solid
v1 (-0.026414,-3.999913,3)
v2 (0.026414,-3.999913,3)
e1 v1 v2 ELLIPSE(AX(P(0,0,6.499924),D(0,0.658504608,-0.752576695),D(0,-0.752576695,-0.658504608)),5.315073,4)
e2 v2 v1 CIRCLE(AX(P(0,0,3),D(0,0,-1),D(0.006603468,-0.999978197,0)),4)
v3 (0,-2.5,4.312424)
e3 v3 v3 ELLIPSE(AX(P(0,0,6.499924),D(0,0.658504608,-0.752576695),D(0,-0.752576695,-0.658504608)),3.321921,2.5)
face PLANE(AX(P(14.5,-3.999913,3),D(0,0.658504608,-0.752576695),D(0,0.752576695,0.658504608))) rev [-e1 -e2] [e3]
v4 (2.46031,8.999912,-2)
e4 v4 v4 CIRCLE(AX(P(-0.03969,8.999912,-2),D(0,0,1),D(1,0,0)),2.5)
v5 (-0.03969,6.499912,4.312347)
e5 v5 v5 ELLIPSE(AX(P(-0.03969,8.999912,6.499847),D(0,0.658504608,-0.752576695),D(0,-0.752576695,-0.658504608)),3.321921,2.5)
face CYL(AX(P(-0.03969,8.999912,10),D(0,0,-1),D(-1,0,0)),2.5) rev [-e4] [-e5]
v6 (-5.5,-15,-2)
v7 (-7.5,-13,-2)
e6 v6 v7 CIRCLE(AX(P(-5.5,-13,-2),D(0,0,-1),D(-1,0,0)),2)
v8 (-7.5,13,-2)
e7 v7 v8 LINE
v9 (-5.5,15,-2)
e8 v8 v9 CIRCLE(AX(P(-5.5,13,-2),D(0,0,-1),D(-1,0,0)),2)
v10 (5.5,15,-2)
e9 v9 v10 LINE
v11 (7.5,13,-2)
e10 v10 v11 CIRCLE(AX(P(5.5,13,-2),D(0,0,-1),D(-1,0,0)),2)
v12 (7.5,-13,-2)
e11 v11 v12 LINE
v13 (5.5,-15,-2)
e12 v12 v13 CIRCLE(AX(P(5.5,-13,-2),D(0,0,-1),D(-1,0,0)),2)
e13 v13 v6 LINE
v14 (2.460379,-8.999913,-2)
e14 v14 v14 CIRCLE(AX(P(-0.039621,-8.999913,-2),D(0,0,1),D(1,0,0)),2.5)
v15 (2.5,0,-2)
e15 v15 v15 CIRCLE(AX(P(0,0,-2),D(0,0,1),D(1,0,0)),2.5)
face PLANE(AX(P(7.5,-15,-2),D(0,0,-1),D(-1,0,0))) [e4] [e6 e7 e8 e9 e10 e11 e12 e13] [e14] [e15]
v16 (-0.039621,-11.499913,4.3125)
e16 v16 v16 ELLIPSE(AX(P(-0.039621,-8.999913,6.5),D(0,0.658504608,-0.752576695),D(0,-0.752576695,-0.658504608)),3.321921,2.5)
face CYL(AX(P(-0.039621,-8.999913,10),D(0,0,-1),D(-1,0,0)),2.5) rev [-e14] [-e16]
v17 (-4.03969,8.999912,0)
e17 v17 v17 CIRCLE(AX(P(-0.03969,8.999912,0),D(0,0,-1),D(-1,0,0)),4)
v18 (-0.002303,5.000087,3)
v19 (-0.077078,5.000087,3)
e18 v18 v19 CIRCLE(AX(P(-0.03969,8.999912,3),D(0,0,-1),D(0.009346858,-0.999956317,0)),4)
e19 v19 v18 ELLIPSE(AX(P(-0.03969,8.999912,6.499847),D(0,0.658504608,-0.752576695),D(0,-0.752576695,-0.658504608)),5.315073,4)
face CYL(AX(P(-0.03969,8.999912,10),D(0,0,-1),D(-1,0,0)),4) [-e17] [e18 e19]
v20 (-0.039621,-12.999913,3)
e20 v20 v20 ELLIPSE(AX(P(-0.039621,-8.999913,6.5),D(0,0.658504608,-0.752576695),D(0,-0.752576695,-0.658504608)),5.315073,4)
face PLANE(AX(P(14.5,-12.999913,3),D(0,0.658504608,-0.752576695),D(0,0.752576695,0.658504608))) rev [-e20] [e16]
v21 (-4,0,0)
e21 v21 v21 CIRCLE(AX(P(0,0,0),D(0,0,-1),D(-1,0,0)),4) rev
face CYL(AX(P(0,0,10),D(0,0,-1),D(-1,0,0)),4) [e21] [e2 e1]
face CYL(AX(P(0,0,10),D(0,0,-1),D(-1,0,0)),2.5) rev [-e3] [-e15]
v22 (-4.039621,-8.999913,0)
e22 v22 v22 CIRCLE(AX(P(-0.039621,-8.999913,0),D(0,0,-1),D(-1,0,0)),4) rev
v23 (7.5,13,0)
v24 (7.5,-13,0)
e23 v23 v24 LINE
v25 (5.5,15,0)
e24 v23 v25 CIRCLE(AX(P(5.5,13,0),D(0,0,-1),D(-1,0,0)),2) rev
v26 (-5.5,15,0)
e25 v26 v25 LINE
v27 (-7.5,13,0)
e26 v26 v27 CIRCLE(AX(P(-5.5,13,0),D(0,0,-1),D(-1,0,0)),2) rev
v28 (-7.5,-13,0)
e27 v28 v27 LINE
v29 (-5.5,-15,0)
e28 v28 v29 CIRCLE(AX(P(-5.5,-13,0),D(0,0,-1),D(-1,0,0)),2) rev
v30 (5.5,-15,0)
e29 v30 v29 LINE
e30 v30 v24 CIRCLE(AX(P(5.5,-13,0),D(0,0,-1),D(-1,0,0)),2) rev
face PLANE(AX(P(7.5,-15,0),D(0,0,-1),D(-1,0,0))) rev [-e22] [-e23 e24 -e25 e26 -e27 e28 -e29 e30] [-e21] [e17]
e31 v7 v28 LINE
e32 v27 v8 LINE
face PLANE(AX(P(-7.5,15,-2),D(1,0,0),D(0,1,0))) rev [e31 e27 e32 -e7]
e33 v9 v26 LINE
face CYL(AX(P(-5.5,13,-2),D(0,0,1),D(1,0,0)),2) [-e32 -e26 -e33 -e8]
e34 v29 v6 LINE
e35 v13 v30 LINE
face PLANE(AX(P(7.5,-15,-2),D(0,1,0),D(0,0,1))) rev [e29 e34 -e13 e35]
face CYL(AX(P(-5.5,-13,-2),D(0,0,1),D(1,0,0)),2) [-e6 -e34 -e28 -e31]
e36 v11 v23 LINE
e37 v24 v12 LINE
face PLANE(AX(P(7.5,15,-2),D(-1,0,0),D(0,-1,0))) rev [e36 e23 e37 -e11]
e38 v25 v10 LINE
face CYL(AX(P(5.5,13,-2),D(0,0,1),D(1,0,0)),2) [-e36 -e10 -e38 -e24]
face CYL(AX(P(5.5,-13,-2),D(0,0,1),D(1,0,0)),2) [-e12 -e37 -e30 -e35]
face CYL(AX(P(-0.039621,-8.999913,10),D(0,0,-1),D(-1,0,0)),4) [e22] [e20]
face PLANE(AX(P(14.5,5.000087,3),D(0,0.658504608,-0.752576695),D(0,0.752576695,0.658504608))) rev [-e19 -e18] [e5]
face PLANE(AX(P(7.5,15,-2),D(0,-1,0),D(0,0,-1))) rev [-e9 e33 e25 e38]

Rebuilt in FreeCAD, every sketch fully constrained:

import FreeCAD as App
import Part
import Sketcher

V = App.Vector
Q = App.Units.Quantity


def edges_at(feature, points):
    """Names of the edges that pass closest to the given points."""
    edges = feature.Shape.Edges
    near = lambda p: min(range(len(edges)), key=lambda i: edges[i].distToShape(Part.Vertex(*p))[0])
    return sorted({f"Edge{near(p) + 1}" for p in points})

doc = App.newDocument("Part")
body = doc.addObject("PartDesign::Body", "Body")

sketch1 = doc.addObject("Sketcher::SketchObject", "Sketch")
body.addObject(sketch1)
sketch1.AttachmentSupport = (doc.XY_Plane, [""])
sketch1.MapMode = "FlatFace"
sketch1.addGeometry([
    Part.Circle(V(-0.03969, 8.999912, 0), V(0, 0, 1), 4),
    Part.Circle(V(-0.03969, 8.999912, 0), V(0, 0, 1), 2.5),
], False)
sketch1.addConstraint([
    Sketcher.Constraint("Coincident", 1, 3, 0, 3),
    Sketcher.Constraint("Diameter", 0, Q("8 mm")),
    Sketcher.Constraint("Diameter", 1, Q("5 mm")),
    Sketcher.Constraint("DistanceX", 0, 3, -1, 1, Q("0.03969 mm")),
    Sketcher.Constraint("DistanceY", -1, 1, 0, 3, Q("8.999912 mm")),
])
pad1 = doc.addObject("PartDesign::Pad", "Pad")
body.addObject(pad1)
pad1.Profile = sketch1
pad1.Length = 10
body2 = doc.addObject("PartDesign::Body", "Body001")

sketch2 = doc.addObject("Sketcher::SketchObject", "Sketch001")
body2.addObject(sketch2)
sketch2.AttachmentSupport = (doc.getObject("XY_Plane001"), [""])
sketch2.MapMode = "FlatFace"
sketch2.addGeometry([
    Part.Circle(V(0, 0, 0), V(0, 0, 1), 4),
    Part.Circle(V(0, 0, 0), V(0, 0, 1), 2.5),
], False)
sketch2.addConstraint([
    Sketcher.Constraint("Coincident", 0, 3, -1, 1),
    Sketcher.Constraint("Coincident", 1, 3, -1, 1),
    Sketcher.Constraint("Diameter", 0, Q("8 mm")),
    Sketcher.Constraint("Diameter", 1, Q("5 mm")),
])
pad2 = doc.addObject("PartDesign::Pad", "Pad001")
body2.addObject(pad2)
pad2.Profile = sketch2
pad2.Length = 10
body3 = doc.addObject("PartDesign::Body", "Body002")

sketch3 = doc.addObject("Sketcher::SketchObject", "Sketch002")
body3.addObject(sketch3)
sketch3.AttachmentSupport = (doc.getObject("XY_Plane002"), [""])
sketch3.MapMode = "FlatFace"
sketch3.addGeometry([
    Part.Circle(V(-0.039621, -8.999913, 0), V(0, 0, 1), 4),
    Part.Circle(V(-0.039621, -8.999913, 0), V(0, 0, 1), 2.5),
], False)
sketch3.addConstraint([
    Sketcher.Constraint("Coincident", 1, 3, 0, 3),
    Sketcher.Constraint("Diameter", 0, Q("8 mm")),
    Sketcher.Constraint("Diameter", 1, Q("5 mm")),
    Sketcher.Constraint("DistanceX", 0, 3, -1, 1, Q("0.039621 mm")),
    Sketcher.Constraint("DistanceY", 0, 3, -1, 1, Q("8.999913 mm")),
])
pad3 = doc.addObject("PartDesign::Pad", "Pad002")
body3.addObject(pad3)
pad3.Profile = sketch3
pad3.Length = 10
body.AllowCompound = True
doc.recompute()

boolean = doc.addObject("PartDesign::Boolean", "Boolean")
body.addObject(boolean)
boolean.Type = "Fuse"
boolean.addObjects([body2])
doc.recompute()

boolean2 = doc.addObject("PartDesign::Boolean", "Boolean001")
body.addObject(boolean2)
boolean2.Type = "Fuse"
boolean2.addObjects([body3])

sketch4 = doc.addObject("Sketcher::SketchObject", "Sketch003")
body.addObject(sketch4)
sketch4.AttachmentSupport = (doc.XY_Plane, [""])
sketch4.MapMode = "FlatFace"
sketch4.addGeometry([
    Part.LineSegment(V(7.5, 15, 0), V(7.5, -15, 0)),
    Part.LineSegment(V(7.5, -15, 0), V(-7.5, -15, 0)),
    Part.LineSegment(V(-7.5, -15, 0), V(-7.5, 15, 0)),
    Part.LineSegment(V(-7.5, 15, 0), V(7.5, 15, 0)),
], False)
sketch4.addConstraint([
    Sketcher.Constraint("Coincident", 0, 2, 1, 1),
    Sketcher.Constraint("Coincident", 1, 2, 2, 1),
    Sketcher.Constraint("Coincident", 2, 2, 3, 1),
    Sketcher.Constraint("Coincident", 3, 2, 0, 1),
    Sketcher.Constraint("Vertical", 0),
    Sketcher.Constraint("Horizontal", 1),
    Sketcher.Constraint("Vertical", 2),
    Sketcher.Constraint("Horizontal", 3),
    Sketcher.Constraint("Symmetric", 0, 2, 2, 2, -1, 1),
    Sketcher.Constraint("DistanceX", 1, 2, 1, 1, Q("15 mm")),
    Sketcher.Constraint("DistanceY", 0, 2, 0, 1, Q("30 mm")),
])
pad4 = doc.addObject("PartDesign::Pad", "Pad003")
body.addObject(pad4)
pad4.Profile = sketch4
pad4.Length = 2
pad4.Reversed = True

sketch5 = doc.addObject("Sketcher::SketchObject", "Sketch004")
body.addObject(sketch5)
sketch5.AttachmentSupport = (doc.XY_Plane, [""])
sketch5.MapMode = "FlatFace"
sketch5.AttachmentOffset = App.Placement(V(0, 0, -2), App.Rotation())
sketch5.addGeometry([
    Part.Circle(V(-0.03969, 8.999912, 0), V(0, 0, 1), 2.5),
    Part.Circle(V(0, 0, 0), V(0, 0, 1), 2.5),
    Part.Circle(V(-0.039621, -8.999913, 0), V(0, 0, 1), 2.5),
], False)
sketch5.addConstraint([
    Sketcher.Constraint("Coincident", 1, 3, -1, 1),
    Sketcher.Constraint("Equal", 0, 1),
    Sketcher.Constraint("Equal", 1, 2),
    Sketcher.Constraint("Diameter", 0, Q("5 mm")),
    Sketcher.Constraint("DistanceX", 0, 3, -1, 1, Q("0.03969 mm")),
    Sketcher.Constraint("DistanceX", 2, 3, -1, 1, Q("0.039621 mm")),
    Sketcher.Constraint("DistanceY", -1, 1, 0, 3, Q("8.999912 mm")),
    Sketcher.Constraint("DistanceY", 2, 3, -1, 1, Q("8.999913 mm")),
])
pocket1 = doc.addObject("PartDesign::Pocket", "Pocket")
body.addObject(pocket1)
pocket1.Profile = sketch5
pocket1.Length = 2
pocket1.Reversed = True

sketch6 = doc.addObject("Sketcher::SketchObject", "Sketch005")
body.addObject(sketch6)
sketch6.AttachmentSupport = (doc.YZ_Plane, [""])
sketch6.MapMode = "FlatFace"
sketch6.AttachmentOffset = App.Placement(V(0, 0, -7.5), App.Rotation())
sketch6.addGeometry([
    Part.LineSegment(V(-4.510778, 10, 0), V(4.000087, 10, 0)),
    Part.LineSegment(V(4.000087, 10, 0), V(-3.999913, 3, 0)),
    Part.LineSegment(V(-3.999913, 3, 0), V(-4.510778, 3, 0)),
    Part.LineSegment(V(-4.510778, 3, 0), V(-4.510778, 10, 0)),
    Part.LineSegment(V(4.572677, 10, 0), V(13.000087, 10, 0)),
    Part.LineSegment(V(13.000087, 10, 0), V(5.000087, 3, 0)),
    Part.LineSegment(V(5.000087, 3, 0), V(4.572677, 3, 0)),
    Part.LineSegment(V(4.572677, 3, 0), V(4.572677, 10, 0)),
    Part.LineSegment(V(-13.831412, 10, 0), V(-4.999913, 10, 0)),
    Part.LineSegment(V(-4.999913, 10, 0), V(-12.999913, 3, 0)),
    Part.LineSegment(V(-12.999913, 3, 0), V(-13.831412, 3, 0)),
    Part.LineSegment(V(-13.831412, 3, 0), V(-13.831412, 10, 0)),
], False)
sketch6.addConstraint([
    Sketcher.Constraint("Coincident", 0, 2, 1, 1),
    Sketcher.Constraint("Coincident", 1, 2, 2, 1),
    Sketcher.Constraint("Coincident", 2, 2, 3, 1),
    Sketcher.Constraint("Coincident", 3, 2, 0, 1),
    Sketcher.Constraint("Coincident", 4, 2, 5, 1),
    Sketcher.Constraint("Coincident", 5, 2, 6, 1),
    Sketcher.Constraint("Coincident", 6, 2, 7, 1),
    Sketcher.Constraint("Coincident", 7, 2, 4, 1),
    Sketcher.Constraint("Coincident", 8, 2, 9, 1),
    Sketcher.Constraint("Coincident", 9, 2, 10, 1),
    Sketcher.Constraint("Coincident", 10, 2, 11, 1),
    Sketcher.Constraint("Coincident", 11, 2, 8, 1),
    Sketcher.Constraint("Horizontal", 0),
    Sketcher.Constraint("Horizontal", 2),
    Sketcher.Constraint("Vertical", 3),
    Sketcher.Constraint("Horizontal", 4),
    Sketcher.Constraint("Horizontal", 6),
    Sketcher.Constraint("Vertical", 7),
    Sketcher.Constraint("Horizontal", 8),
    Sketcher.Constraint("Horizontal", 10),
    Sketcher.Constraint("Vertical", 11),
    Sketcher.Constraint("Parallel", 1, 5),
    Sketcher.Constraint("Parallel", 5, 9),
    Sketcher.Constraint("Horizontal", 3, 2, 4, 2),
    Sketcher.Constraint("Horizontal", 2, 2, 5, 2),
    Sketcher.Constraint("Horizontal", 7, 2, 8, 2),
    Sketcher.Constraint("Horizontal", 6, 2, 9, 2),
    Sketcher.Constraint("DistanceY", 3, 1, 3, 2, Q("7 mm")),
    Sketcher.Constraint("DistanceY", -1, 1, 0, 2, Q("10 mm")),
    Sketcher.Constraint("DistanceX", 1, 2, 0, 2, Q("8 mm")),
    Sketcher.Constraint("DistanceX", 0, 2, 4, 2, Q("9 mm")),
    Sketcher.Constraint("DistanceX", 8, 2, 1, 2, Q("1 mm")),
    Sketcher.Constraint("DistanceX", 8, 1, 8, 2, Q("8.831499 mm")),
    Sketcher.Constraint("DistanceX", 4, 1, 4, 2, Q("8.42741 mm")),
    Sketcher.Constraint("DistanceX", 0, 1, 0, 2, Q("8.510865 mm")),
    Sketcher.Constraint("DistanceX", 2, 2, -1, 1, Q("4.510778 mm")),
])
pocket2 = doc.addObject("PartDesign::Pocket", "Pocket001")
body.addObject(pocket2)
pocket2.Profile = sketch6
pocket2.Length = 22
pocket2.Reversed = True
doc.recompute()

fillet = doc.addObject("PartDesign::Fillet", "Fillet")
body.addObject(fillet)
fillet.Base = (pocket2, edges_at(pocket2, [
    (7.5, -15, -1),
    (-7.5, -15, -1),
    (-7.5, 15, -1),
    (7.5, 15, -1),
]))
fillet.Radius = 2

doc.recompute()
